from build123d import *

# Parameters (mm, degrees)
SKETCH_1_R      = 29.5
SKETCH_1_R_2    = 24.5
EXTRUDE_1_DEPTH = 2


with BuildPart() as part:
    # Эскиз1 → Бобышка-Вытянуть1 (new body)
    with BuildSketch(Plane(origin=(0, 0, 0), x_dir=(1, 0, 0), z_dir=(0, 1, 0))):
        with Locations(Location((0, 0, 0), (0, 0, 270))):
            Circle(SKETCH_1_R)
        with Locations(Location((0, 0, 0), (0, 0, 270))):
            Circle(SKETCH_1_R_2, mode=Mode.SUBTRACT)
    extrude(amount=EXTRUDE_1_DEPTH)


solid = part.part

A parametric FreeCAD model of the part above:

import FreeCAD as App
import Part
import Sketcher
from FreeCAD import Vector
Q = App.Units.Quantity

doc = App.newDocument("Part")
body = doc.addObject("PartDesign::Body", "Body")

sketch1 = body.newObject("Sketcher::SketchObject", "Sketch")
sketch1.AttachmentSupport = (doc.getObject("XZ_Plane"), [""])
sketch1.MapMode = "FlatFace"
sketch1.addGeometry([
    Part.Circle(Vector(0, 0, 0), Vector(0, 0, 1), 30),
    Part.Circle(Vector(0, 0, 0), Vector(0, 0, 1), 24),
], False)
sketch1.addConstraint([
    Sketcher.Constraint("Coincident", 0, 3, -1, 1),
    Sketcher.Constraint("Coincident", 1, 3, -1, 1),
    Sketcher.Constraint("Diameter", 0, Q("59 mm")),
    Sketcher.Constraint("Diameter", 1, Q("49 mm")),
])
pad1 = body.newObject("PartDesign::Pad", "Pad")
pad1.Profile = sketch1
pad1.Length = 2
pad1.Reversed = True

doc.recompute()
